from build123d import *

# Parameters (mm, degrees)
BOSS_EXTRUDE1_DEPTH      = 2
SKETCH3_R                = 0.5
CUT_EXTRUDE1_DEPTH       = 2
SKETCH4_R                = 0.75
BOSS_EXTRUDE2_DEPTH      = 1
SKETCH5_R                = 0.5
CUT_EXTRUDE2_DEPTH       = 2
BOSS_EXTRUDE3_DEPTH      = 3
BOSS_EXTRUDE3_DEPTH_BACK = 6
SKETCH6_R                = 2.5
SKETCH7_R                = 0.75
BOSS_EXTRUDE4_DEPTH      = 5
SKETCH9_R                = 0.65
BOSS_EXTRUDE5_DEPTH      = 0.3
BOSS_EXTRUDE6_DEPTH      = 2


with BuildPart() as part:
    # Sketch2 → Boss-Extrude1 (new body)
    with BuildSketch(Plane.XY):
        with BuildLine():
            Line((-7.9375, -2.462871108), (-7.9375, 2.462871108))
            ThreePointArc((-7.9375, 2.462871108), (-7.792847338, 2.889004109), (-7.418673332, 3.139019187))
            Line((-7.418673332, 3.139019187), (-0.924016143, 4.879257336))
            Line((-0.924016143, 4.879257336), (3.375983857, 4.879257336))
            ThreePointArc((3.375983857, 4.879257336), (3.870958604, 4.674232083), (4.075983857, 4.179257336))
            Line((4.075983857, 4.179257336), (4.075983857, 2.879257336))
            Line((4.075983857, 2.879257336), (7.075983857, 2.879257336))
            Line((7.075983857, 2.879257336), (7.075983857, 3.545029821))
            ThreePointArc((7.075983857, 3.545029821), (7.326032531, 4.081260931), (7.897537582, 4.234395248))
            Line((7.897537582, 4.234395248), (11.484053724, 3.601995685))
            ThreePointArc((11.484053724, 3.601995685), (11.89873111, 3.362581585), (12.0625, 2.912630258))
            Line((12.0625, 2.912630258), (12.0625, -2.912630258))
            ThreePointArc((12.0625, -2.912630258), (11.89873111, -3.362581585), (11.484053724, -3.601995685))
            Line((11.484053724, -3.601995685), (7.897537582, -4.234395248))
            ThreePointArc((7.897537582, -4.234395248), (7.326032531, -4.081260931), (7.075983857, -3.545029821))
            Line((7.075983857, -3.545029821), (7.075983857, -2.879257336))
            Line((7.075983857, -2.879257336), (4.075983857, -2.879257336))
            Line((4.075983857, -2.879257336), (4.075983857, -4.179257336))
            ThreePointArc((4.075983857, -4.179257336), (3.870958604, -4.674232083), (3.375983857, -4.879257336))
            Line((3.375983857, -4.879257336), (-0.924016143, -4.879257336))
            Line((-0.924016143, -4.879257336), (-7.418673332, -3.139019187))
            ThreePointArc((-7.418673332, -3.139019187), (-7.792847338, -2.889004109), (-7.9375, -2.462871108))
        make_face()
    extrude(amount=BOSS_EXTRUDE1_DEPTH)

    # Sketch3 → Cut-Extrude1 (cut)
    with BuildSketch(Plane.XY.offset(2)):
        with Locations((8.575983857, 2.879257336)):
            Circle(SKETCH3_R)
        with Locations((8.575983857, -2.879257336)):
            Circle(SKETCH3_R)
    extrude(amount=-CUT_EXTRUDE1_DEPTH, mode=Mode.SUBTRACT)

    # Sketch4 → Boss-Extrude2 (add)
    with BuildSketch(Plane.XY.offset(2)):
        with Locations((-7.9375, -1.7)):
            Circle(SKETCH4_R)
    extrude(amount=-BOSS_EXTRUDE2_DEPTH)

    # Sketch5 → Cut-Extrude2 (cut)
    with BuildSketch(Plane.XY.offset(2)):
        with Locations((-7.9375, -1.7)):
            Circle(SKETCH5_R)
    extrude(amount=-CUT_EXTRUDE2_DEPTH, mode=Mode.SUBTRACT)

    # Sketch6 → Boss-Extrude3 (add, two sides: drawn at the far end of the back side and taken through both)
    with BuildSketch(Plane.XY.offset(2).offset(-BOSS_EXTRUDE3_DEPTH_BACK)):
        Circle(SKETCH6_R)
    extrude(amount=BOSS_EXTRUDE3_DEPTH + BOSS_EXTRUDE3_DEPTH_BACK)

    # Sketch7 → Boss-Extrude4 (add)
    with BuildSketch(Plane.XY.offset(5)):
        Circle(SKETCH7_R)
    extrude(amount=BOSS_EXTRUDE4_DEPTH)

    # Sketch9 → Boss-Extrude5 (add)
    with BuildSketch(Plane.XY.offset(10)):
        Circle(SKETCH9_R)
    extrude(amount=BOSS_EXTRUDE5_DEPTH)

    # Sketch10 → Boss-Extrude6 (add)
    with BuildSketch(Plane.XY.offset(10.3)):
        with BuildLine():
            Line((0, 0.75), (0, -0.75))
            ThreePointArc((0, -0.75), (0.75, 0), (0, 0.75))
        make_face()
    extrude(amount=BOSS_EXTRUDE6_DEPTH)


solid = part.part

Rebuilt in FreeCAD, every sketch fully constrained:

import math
import FreeCAD as App
import Part
import Sketcher
from FreeCAD import Vector
Q = App.Units.Quantity

doc = App.newDocument("Part")
params = doc.addObject("Spreadsheet::Sheet", "Params")
for row, (alias, value) in enumerate([
    ("sketch1_radius", "0.7 mm"),
    ("sketch1_width", "3 mm"),
    ("sketch1_width2", "4.3 mm"),
    ("sketch1_height", "1.3 mm"),
    ("pad1_length", "2 mm"),
    ("sketch2_diameter", "1 mm"),
    ("pocket1_length", "2 mm"),
    ("sketch3_diameter", "1.5 mm"),
    ("pad2_length", "1 mm"),
    ("sketch4_diameter", "1 mm"),
    ("pocket2_length", "2 mm"),
    ("sketch5_diameter", "5 mm"),
    ("pad3_length", "3 mm"),
    ("pad3_length2", "6 mm"),
    ("sketch6_diameter", "1.5 mm"),
    ("pad4_length", "5 mm"),
    ("sketch7_diameter", "1.3 mm"),
    ("pad5_length", "0.3 mm"),
    ("sketch8_radius", "0.75 mm"),
    ("pad6_length", "2 mm"),
], start=1):
    params.set(f"A{row}", alias)
    params.set(f"B{row}", "=" + value)
    params.setAlias(f"B{row}", alias)

body = doc.addObject("PartDesign::Body", "Body")

sketch1 = body.newObject("Sketcher::SketchObject", "Sketch")
sketch1.AttachmentSupport = (doc.getObject("XY_Plane"), [""])
sketch1.MapMode = "FlatFace"
sketch1.addGeometry([
    Part.LineSegment(Vector(-7.9, 2.5, 0), Vector(-7.9, -2.5, 0)),
    Part.ArcOfCircle(Part.Circle(Vector(-7.2, -2.5, 0), Vector(0, 0, 1), 0.7), math.radians(180), math.radians(255)),
    Part.LineSegment(Vector(-7.4, -3.1, 0), Vector(-0.9, -4.9, 0)),
    Part.LineSegment(Vector(-0.9, -4.9, 0), Vector(3.4, -4.9, 0)),
    Part.ArcOfCircle(Part.Circle(Vector(3.4, -4.2, 0), Vector(0, 0, 1), 0.7), math.radians(-90), math.radians(0)),
    Part.LineSegment(Vector(4.1, -4.2, 0), Vector(4.1, -2.9, 0)),
    Part.LineSegment(Vector(4.1, -2.9, 0), Vector(7.1, -2.9, 0)),
    Part.LineSegment(Vector(7.1, -2.9, 0), Vector(7.1, -3.5, 0)),
    Part.ArcOfCircle(Part.Circle(Vector(7.8, -3.5, 0), Vector(0, 0, 1), 0.7), math.radians(-180), math.radians(-80)),
    Part.LineSegment(Vector(7.9, -4.2, 0), Vector(11.5, -3.6, 0)),
    Part.ArcOfCircle(Part.Circle(Vector(11.4, -2.9, 0), Vector(0, 0, 1), 0.7), math.radians(-80), math.radians(0)),
    Part.LineSegment(Vector(12.1, -2.9, 0), Vector(12.1, 2.9, 0)),
    Part.ArcOfCircle(Part.Circle(Vector(11.4, 2.9, 0), Vector(0, 0, 1), 0.7), math.radians(0), math.radians(80)),
    Part.LineSegment(Vector(11.5, 3.6, 0), Vector(7.9, 4.2, 0)),
    Part.ArcOfCircle(Part.Circle(Vector(7.8, 3.5, 0), Vector(0, 0, 1), 0.7), math.radians(80), math.radians(180)),
    Part.LineSegment(Vector(7.1, 3.5, 0), Vector(7.1, 2.9, 0)),
    Part.LineSegment(Vector(7.1, 2.9, 0), Vector(4.1, 2.9, 0)),
    Part.LineSegment(Vector(4.1, 2.9, 0), Vector(4.1, 4.2, 0)),
    Part.ArcOfCircle(Part.Circle(Vector(3.4, 4.2, 0), Vector(0, 0, 1), 0.7), math.radians(0), math.radians(90)),
    Part.LineSegment(Vector(3.4, 4.9, 0), Vector(-0.9, 4.9, 0)),
    Part.LineSegment(Vector(-0.9, 4.9, 0), Vector(-7.4, 3.1, 0)),
    Part.ArcOfCircle(Part.Circle(Vector(-7.2, 2.5, 0), Vector(0, 0, 1), 0.7), math.radians(105), math.radians(180)),
], False)
sketch1.addConstraint([
    Sketcher.Constraint("Tangent", 0, 2, 1, 1),
    Sketcher.Constraint("Tangent", 1, 2, 2, 1),
    Sketcher.Constraint("Coincident", 2, 2, 3, 1),
    Sketcher.Constraint("Tangent", 3, 2, 4, 1),
    Sketcher.Constraint("Tangent", 4, 2, 5, 1),
    Sketcher.Constraint("Coincident", 5, 2, 6, 1),
    Sketcher.Constraint("Coincident", 6, 2, 7, 1),
    Sketcher.Constraint("Tangent", 7, 2, 8, 1),
    Sketcher.Constraint("Tangent", 8, 2, 9, 1),
    Sketcher.Constraint("Tangent", 9, 2, 10, 1),
    Sketcher.Constraint("Tangent", 10, 2, 11, 1),
    Sketcher.Constraint("Tangent", 11, 2, 12, 1),
    Sketcher.Constraint("Tangent", 12, 2, 13, 1),
    Sketcher.Constraint("Tangent", 13, 2, 14, 1),
    Sketcher.Constraint("Tangent", 14, 2, 15, 1),
    Sketcher.Constraint("Coincident", 15, 2, 16, 1),
    Sketcher.Constraint("Coincident", 16, 2, 17, 1),
    Sketcher.Constraint("Tangent", 17, 2, 18, 1),
    Sketcher.Constraint("Tangent", 18, 2, 19, 1),
    Sketcher.Constraint("Coincident", 19, 2, 20, 1),
    Sketcher.Constraint("Tangent", 20, 2, 21, 1),
    Sketcher.Constraint("Tangent", 21, 2, 0, 1),
    Sketcher.Constraint("Vertical", 0),
    Sketcher.Constraint("Horizontal", 3),
    Sketcher.Constraint("Vertical", 5),
    Sketcher.Constraint("Horizontal", 6),
    Sketcher.Constraint("Vertical", 7),
    Sketcher.Constraint("Vertical", 11),
    Sketcher.Constraint("Vertical", 15),
    Sketcher.Constraint("Horizontal", 16),
    Sketcher.Constraint("Vertical", 17),
    Sketcher.Constraint("Horizontal", 19),
    Sketcher.Constraint("Equal", 1, 4),
    Sketcher.Constraint("Equal", 4, 8),
    Sketcher.Constraint("Equal", 8, 10),
    Sketcher.Constraint("Equal", 10, 12),
    Sketcher.Constraint("Equal", 12, 14),
    Sketcher.Constraint("Equal", 14, 18),
    Sketcher.Constraint("Equal", 18, 21),
    Sketcher.Constraint("Symmetric", 8, 3, 14, 3, -1),
    Sketcher.Constraint("Symmetric", 4, 3, 18, 3, -1),
    Sketcher.Constraint("Symmetric", 1, 2, 20, 2, -1),
    Sketcher.Constraint("Vertical", 9, 2, 12, 2),
    Sketcher.Constraint("Equal", 7, 15),
    Sketcher.Constraint("Radius", 1, 0.7),
    Sketcher.Constraint("DistanceX", 6, 1, 6, 2, 3.0),
    Sketcher.Constraint("Angle", 2, Q("-15 deg")),
    Sketcher.Constraint("Angle", 9, Q("10 deg")),
    Sketcher.Constraint("DistanceX", 3, 1, 3, 2, 4.3),
    Sketcher.Constraint("DistanceY", 5, 1, 5, 2, 1.3),
    Sketcher.Constraint("DistanceX", 1, 3, 10, 3, 18.6),
    Sketcher.Constraint("DistanceY", 11, 1, 11, 2, 5.825261),
    Sketcher.Constraint("DistanceX", 1, 3, -1, 1, 7.2375),
    Sketcher.Constraint("DistanceY", 8, 3, 10, 3, 0.6324),
    Sketcher.Constraint("DistanceY", 1, 3, 12, 3, 5.375501),
])
sketch1.setExpression("Constraints[44]", "Params.sketch1_radius")
sketch1.setExpression("Constraints[45]", "Params.sketch1_width")
sketch1.setExpression("Constraints[48]", "Params.sketch1_width2")
sketch1.setExpression("Constraints[49]", "Params.sketch1_height")
pad1 = body.newObject("PartDesign::Pad", "Pad")
pad1.Profile = sketch1
pad1.setExpression("Length", "Params.pad1_length")

sketch2 = body.newObject("Sketcher::SketchObject", "Sketch001")
sketch2.AttachmentSupport = (doc.getObject("XY_Plane"), [""])
sketch2.MapMode = "FlatFace"
sketch2.AttachmentOffset = App.Placement(Vector(0, 0, 2), App.Rotation())
sketch2.addGeometry([
    Part.Circle(Vector(8.6, 2.9, 0), Vector(0, 0, 1), 0.5),
    Part.Circle(Vector(8.6, -2.9, 0), Vector(0, 0, 1), 0.5),
], False)
sketch2.addConstraint([
    Sketcher.Constraint("Equal", 0, 1),
    Sketcher.Constraint("Symmetric", 0, 3, 1, 3, -1),
    Sketcher.Constraint("Diameter", 0, 1.0),
    Sketcher.Constraint("DistanceX", -1, 1, 0, 3, 8.575984),
    Sketcher.Constraint("DistanceY", -1, 1, 0, 3, 2.879257),
])
sketch2.setExpression("Constraints[2]", "Params.sketch2_diameter")
pocket1 = body.newObject("PartDesign::Pocket", "Pocket")
pocket1.Profile = sketch2
pocket1.setExpression("Length", "Params.pocket1_length")

sketch3 = body.newObject("Sketcher::SketchObject", "Sketch002")
sketch3.AttachmentSupport = (doc.getObject("XY_Plane"), [""])
sketch3.MapMode = "FlatFace"
sketch3.AttachmentOffset = App.Placement(Vector(0, 0, 2), App.Rotation())
sketch3.addGeometry(Part.Circle(Vector(-7.9, -1.7, 0), Vector(0, 0, 1), 0.8), False)
sketch3.addConstraint([
    Sketcher.Constraint("Diameter", 0, 1.5),
    Sketcher.Constraint("DistanceY", 0, 3, -1, 1, 1.7),
    Sketcher.Constraint("DistanceX", 0, 3, -1, 1, 7.9375),
])
sketch3.setExpression("Constraints[0]", "Params.sketch3_diameter")
pad2 = body.newObject("PartDesign::Pad", "Pad001")
pad2.Profile = sketch3
pad2.setExpression("Length", "Params.pad2_length")
pad2.Reversed = True

sketch4 = body.newObject("Sketcher::SketchObject", "Sketch003")
sketch4.AttachmentSupport = (doc.getObject("XY_Plane"), [""])
sketch4.MapMode = "FlatFace"
sketch4.AttachmentOffset = App.Placement(Vector(0, 0, 2), App.Rotation())
sketch4.addGeometry(Part.Circle(Vector(-7.9, -1.7, 0), Vector(0, 0, 1), 0.5), False)
sketch4.addConstraint([
    Sketcher.Constraint("Diameter", 0, 1.0),
    Sketcher.Constraint("DistanceY", 0, 3, -1, 1, 1.7),
    Sketcher.Constraint("DistanceX", 0, 3, -1, 1, 7.9375),
])
sketch4.setExpression("Constraints[0]", "Params.sketch4_diameter")
pocket2 = body.newObject("PartDesign::Pocket", "Pocket001")
pocket2.Profile = sketch4
pocket2.setExpression("Length", "Params.pocket2_length")

sketch5 = body.newObject("Sketcher::SketchObject", "Sketch004")
sketch5.AttachmentSupport = (doc.getObject("XY_Plane"), [""])
sketch5.MapMode = "FlatFace"
sketch5.AttachmentOffset = App.Placement(Vector(0, 0, 2), App.Rotation())
sketch5.addGeometry(Part.Circle(Vector(0, 0, 0), Vector(0, 0, 1), 2.5), False)
sketch5.addConstraint([
    Sketcher.Constraint("Coincident", 0, 3, -1, 1),
    Sketcher.Constraint("Diameter", 0, 5.0),
])
sketch5.setExpression("Constraints[1]", "Params.sketch5_diameter")
pad3 = body.newObject("PartDesign::Pad", "Pad002")
pad3.Profile = sketch5
pad3.Type = "TwoLengths"
pad3.setExpression("Length", "Params.pad3_length")
pad3.setExpression("Length2", "Params.pad3_length2")

sketch6 = body.newObject("Sketcher::SketchObject", "Sketch005")
sketch6.AttachmentSupport = (doc.getObject("XY_Plane"), [""])
sketch6.MapMode = "FlatFace"
sketch6.AttachmentOffset = App.Placement(Vector(0, 0, 5), App.Rotation())
sketch6.addGeometry(Part.Circle(Vector(0, 0, 0), Vector(0, 0, 1), 0.8), False)
sketch6.addConstraint([
    Sketcher.Constraint("Coincident", 0, 3, -1, 1),
    Sketcher.Constraint("Diameter", 0, 1.5),
])
sketch6.setExpression("Constraints[1]", "Params.sketch6_diameter")
pad4 = body.newObject("PartDesign::Pad", "Pad003")
pad4.Profile = sketch6
pad4.setExpression("Length", "Params.pad4_length")

sketch7 = body.newObject("Sketcher::SketchObject", "Sketch006")
sketch7.AttachmentSupport = (doc.getObject("XY_Plane"), [""])
sketch7.MapMode = "FlatFace"
sketch7.AttachmentOffset = App.Placement(Vector(0, 0, 10), App.Rotation())
sketch7.addGeometry(Part.Circle(Vector(0, 0, 0), Vector(0, 0, 1), 0.7), False)
sketch7.addConstraint([
    Sketcher.Constraint("Coincident", 0, 3, -1, 1),
    Sketcher.Constraint("Diameter", 0, 1.3),
])
sketch7.setExpression("Constraints[1]", "Params.sketch7_diameter")
pad5 = body.newObject("PartDesign::Pad", "Pad004")
pad5.Profile = sketch7
pad5.setExpression("Length", "Params.pad5_length")

sketch8 = body.newObject("Sketcher::SketchObject", "Sketch007")
sketch8.AttachmentSupport = (doc.getObject("XY_Plane"), [""])
sketch8.MapMode = "FlatFace"
sketch8.AttachmentOffset = App.Placement(Vector(0, 0, 10.3), App.Rotation())
sketch8.addGeometry([
    Part.LineSegment(Vector(0, 0.8, 0), Vector(0, -0.8, 0)),
    Part.ArcOfCircle(Part.Circle(Vector(0, 0, 0), Vector(0, 0, 1), 0.8), math.radians(-90), math.radians(90)),
], False)
sketch8.addConstraint([
    Sketcher.Constraint("Coincident", 0, 1, 1, 2),
    Sketcher.Constraint("Coincident", 1, 1, 0, 2),
    Sketcher.Constraint("Vertical", 0),
    Sketcher.Constraint("Coincident", 1, 3, -1, 1),
    Sketcher.Constraint("PointOnObject", 0, 1, -2),
    Sketcher.Constraint("Radius", 1, 0.75),
])
sketch8.setExpression("Constraints[5]", "Params.sketch8_radius")
pad6 = body.newObject("PartDesign::Pad", "Pad005")
pad6.Profile = sketch8
pad6.setExpression("Length", "Params.pad6_length")

doc.recompute()
